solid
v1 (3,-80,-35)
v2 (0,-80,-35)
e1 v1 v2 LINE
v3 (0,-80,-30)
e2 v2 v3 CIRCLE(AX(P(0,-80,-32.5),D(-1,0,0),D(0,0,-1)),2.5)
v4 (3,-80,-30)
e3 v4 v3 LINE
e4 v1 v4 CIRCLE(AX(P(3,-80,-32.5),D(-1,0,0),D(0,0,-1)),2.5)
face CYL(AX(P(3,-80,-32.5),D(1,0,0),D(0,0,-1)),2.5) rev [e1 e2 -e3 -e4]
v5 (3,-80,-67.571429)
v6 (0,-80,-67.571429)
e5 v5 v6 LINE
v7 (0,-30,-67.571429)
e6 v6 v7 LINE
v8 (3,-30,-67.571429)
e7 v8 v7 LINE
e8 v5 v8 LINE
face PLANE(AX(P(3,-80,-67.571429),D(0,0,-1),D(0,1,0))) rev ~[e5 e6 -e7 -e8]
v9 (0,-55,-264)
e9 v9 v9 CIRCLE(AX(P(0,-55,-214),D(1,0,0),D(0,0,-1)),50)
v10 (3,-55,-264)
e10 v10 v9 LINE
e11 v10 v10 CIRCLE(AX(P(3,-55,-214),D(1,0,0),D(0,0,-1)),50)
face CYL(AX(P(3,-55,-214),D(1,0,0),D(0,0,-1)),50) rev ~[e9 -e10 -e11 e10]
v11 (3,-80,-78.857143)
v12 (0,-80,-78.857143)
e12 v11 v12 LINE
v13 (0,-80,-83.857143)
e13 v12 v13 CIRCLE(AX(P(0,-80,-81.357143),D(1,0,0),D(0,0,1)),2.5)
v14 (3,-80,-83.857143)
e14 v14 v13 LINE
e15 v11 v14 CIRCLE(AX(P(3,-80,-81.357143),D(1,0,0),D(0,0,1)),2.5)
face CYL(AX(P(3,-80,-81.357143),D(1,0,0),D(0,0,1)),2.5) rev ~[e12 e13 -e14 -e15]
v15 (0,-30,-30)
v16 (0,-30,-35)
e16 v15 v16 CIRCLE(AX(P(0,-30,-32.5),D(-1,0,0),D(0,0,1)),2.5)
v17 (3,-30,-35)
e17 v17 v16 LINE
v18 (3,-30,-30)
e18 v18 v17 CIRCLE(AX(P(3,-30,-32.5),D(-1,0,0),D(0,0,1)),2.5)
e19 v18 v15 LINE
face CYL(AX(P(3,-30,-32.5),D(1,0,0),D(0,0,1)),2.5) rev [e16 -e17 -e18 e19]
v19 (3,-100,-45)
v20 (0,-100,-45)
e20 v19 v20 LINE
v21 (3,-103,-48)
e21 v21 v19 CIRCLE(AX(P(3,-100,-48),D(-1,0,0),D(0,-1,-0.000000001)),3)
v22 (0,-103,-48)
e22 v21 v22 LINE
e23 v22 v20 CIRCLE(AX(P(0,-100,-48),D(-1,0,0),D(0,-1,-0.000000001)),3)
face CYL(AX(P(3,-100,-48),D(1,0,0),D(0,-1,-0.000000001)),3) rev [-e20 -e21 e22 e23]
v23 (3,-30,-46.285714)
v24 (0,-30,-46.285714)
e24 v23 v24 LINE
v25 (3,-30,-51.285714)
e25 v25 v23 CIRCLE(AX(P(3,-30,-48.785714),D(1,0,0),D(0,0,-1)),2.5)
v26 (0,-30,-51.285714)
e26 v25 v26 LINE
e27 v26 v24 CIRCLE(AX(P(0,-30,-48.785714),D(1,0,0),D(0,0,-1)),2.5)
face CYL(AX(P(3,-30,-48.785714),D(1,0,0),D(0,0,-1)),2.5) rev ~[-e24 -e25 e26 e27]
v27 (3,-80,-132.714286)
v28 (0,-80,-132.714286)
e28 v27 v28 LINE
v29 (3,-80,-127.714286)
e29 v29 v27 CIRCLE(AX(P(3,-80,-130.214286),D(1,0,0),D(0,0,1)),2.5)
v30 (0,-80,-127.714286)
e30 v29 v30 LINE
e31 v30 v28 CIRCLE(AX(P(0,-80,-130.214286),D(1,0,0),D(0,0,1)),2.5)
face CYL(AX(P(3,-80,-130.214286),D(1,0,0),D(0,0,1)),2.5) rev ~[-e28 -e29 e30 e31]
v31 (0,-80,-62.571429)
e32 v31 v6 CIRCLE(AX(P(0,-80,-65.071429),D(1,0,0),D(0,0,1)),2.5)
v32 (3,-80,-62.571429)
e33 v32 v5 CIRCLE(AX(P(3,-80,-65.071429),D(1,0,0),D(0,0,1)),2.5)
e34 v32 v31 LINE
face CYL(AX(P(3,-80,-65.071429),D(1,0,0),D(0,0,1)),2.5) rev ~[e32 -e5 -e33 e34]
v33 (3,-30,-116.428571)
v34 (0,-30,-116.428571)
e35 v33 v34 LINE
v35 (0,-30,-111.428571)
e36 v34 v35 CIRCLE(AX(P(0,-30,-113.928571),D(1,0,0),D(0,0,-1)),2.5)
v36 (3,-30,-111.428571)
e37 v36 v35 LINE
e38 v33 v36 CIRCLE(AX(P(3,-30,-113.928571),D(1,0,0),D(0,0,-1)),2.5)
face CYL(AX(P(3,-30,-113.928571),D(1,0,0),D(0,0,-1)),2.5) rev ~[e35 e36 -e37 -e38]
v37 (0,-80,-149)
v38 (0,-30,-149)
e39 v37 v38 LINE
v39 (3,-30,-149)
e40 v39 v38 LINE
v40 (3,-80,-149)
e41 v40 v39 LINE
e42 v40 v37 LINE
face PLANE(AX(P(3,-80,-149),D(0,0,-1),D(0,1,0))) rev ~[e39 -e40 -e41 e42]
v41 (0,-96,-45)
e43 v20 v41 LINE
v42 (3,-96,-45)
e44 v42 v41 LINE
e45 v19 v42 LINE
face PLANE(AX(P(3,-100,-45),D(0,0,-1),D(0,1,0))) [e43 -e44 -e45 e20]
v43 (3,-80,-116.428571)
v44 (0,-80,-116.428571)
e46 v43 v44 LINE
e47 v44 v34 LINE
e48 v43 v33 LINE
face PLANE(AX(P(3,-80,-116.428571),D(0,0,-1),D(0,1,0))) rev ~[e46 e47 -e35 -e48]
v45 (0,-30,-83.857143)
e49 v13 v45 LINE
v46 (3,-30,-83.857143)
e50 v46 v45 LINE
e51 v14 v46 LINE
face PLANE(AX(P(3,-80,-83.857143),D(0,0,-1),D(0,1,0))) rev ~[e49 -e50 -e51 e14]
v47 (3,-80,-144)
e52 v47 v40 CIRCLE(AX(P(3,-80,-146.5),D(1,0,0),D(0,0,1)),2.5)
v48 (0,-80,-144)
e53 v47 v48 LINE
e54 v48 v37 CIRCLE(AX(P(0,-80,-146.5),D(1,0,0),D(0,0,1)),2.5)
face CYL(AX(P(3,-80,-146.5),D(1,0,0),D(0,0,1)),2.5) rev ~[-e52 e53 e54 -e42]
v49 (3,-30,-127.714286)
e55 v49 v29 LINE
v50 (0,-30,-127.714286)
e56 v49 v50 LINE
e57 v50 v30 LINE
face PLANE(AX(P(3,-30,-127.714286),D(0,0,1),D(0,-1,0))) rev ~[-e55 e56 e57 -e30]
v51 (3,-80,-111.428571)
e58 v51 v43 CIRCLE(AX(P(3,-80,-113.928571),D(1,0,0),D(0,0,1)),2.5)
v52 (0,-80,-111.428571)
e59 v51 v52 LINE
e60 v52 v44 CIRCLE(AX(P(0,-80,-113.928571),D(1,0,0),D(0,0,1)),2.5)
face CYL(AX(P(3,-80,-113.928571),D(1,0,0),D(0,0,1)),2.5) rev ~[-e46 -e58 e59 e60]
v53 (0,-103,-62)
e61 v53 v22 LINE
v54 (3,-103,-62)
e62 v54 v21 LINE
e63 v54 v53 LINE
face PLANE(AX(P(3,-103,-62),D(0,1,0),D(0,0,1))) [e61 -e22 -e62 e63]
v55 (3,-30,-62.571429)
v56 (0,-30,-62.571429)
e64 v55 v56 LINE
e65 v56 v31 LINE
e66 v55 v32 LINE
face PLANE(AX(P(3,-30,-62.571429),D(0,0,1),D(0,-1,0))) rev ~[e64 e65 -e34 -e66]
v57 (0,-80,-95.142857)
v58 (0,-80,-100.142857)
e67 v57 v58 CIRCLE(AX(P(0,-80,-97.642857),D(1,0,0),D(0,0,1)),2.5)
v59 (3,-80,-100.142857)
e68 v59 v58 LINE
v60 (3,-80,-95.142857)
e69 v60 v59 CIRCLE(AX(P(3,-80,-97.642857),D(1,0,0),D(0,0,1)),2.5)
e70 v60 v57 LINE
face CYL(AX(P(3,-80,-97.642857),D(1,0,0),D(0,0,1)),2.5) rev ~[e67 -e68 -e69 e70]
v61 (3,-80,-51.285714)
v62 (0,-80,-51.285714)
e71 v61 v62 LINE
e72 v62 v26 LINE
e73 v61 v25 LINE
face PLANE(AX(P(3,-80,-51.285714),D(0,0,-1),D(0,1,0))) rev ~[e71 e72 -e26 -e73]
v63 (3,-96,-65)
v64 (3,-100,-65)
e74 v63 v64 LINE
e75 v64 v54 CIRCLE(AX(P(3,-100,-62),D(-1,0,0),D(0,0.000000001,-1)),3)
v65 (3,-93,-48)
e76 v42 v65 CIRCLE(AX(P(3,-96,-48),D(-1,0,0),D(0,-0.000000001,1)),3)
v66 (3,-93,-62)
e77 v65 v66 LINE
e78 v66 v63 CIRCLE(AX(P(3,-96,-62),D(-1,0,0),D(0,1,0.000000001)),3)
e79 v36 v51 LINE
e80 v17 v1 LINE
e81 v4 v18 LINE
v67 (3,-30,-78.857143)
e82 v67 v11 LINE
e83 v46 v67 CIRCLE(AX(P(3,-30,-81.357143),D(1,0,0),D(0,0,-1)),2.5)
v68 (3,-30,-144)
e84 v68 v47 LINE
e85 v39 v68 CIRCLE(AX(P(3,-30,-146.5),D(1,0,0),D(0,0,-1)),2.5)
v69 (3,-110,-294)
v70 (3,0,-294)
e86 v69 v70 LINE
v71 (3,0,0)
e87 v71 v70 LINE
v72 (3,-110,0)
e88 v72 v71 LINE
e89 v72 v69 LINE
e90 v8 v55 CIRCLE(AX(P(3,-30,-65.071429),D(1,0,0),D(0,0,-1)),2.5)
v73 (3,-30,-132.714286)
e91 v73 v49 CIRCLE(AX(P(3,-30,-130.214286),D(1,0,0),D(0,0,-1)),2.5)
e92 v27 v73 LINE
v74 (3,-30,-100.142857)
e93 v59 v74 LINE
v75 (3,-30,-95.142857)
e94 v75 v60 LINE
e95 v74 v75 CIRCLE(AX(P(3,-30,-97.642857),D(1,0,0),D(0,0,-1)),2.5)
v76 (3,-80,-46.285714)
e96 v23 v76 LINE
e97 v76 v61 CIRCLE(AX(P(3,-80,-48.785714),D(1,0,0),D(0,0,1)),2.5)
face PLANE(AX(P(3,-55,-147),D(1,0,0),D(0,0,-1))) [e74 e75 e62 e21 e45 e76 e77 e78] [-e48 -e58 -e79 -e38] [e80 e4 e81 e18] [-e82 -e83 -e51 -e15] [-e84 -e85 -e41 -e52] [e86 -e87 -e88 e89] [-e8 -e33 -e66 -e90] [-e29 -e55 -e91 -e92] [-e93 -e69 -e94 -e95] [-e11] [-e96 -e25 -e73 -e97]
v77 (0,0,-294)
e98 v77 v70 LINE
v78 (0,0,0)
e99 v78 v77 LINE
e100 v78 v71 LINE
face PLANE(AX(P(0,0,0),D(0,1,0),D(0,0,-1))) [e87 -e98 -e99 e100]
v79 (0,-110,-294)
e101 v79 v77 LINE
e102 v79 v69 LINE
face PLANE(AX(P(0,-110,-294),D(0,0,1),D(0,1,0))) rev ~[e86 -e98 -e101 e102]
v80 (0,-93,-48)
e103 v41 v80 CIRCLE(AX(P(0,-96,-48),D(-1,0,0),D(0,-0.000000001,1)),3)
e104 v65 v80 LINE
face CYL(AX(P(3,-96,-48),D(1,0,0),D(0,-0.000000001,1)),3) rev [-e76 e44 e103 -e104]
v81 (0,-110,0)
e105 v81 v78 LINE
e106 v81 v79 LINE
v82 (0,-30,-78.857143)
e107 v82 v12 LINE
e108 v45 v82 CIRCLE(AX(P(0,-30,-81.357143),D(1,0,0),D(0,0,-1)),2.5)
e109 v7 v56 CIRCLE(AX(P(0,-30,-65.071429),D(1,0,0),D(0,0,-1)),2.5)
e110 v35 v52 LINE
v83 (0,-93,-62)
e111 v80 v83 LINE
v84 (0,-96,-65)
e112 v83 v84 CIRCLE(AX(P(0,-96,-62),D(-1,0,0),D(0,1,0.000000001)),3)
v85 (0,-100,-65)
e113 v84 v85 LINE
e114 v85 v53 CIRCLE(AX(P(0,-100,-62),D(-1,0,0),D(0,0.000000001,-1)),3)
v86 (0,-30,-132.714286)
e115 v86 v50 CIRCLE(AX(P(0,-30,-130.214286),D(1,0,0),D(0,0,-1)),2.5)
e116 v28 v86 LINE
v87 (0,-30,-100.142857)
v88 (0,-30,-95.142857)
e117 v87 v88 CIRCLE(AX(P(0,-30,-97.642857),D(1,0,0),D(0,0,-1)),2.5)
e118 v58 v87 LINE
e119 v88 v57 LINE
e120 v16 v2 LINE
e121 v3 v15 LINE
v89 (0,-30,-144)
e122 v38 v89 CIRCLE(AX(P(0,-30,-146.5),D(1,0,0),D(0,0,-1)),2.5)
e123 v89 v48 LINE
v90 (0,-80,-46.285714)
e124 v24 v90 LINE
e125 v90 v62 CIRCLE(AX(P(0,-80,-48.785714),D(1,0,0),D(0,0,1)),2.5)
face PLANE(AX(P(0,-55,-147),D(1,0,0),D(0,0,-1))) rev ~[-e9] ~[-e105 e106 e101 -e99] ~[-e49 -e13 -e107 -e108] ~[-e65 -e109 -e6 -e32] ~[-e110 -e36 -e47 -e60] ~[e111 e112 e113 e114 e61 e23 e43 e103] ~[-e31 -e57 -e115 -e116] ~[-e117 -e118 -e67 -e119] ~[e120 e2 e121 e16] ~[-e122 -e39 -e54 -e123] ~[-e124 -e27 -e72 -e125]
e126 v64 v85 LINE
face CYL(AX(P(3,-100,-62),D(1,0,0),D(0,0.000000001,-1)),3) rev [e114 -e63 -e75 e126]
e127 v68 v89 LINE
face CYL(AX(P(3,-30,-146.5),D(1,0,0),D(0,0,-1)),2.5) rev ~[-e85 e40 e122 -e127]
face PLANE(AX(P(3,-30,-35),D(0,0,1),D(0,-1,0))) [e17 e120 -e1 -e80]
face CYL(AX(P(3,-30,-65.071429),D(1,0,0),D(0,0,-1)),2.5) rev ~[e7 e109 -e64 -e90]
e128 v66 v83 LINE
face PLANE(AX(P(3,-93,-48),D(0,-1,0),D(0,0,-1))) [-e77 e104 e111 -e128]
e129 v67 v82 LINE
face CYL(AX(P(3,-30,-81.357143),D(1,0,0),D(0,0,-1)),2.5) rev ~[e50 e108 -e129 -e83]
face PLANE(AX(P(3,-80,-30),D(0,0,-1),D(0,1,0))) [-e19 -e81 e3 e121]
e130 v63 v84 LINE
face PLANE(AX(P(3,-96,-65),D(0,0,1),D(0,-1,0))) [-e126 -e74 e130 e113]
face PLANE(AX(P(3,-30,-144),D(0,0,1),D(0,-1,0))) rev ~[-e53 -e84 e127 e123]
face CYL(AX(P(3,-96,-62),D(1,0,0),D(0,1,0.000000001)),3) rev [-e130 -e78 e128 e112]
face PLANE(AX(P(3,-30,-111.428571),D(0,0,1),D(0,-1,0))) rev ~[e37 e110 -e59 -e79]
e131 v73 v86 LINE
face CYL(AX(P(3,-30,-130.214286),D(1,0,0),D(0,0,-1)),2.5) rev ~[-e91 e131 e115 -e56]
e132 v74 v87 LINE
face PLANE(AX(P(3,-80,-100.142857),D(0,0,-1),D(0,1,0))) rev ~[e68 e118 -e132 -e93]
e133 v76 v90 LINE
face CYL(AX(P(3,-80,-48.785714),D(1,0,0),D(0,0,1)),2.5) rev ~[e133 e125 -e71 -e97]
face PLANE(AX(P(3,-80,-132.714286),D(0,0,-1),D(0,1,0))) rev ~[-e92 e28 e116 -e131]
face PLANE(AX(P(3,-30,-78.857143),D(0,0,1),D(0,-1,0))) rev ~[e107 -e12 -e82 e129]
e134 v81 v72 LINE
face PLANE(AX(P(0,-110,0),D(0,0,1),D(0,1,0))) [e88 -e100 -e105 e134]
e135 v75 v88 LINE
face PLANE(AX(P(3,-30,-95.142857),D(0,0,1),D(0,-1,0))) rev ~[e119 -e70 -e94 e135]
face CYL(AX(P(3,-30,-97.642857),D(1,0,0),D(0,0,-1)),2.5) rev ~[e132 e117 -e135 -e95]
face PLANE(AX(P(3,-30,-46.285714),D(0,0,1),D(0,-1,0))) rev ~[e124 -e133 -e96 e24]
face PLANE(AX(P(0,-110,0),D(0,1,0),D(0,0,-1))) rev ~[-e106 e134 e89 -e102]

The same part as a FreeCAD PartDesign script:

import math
import FreeCAD as App
import Part
import Sketcher

V = App.Vector

doc = App.newDocument("Part")
body = doc.addObject("PartDesign::Body", "Body")

# Sketch on YZ plane
sketch1 = body.newObject("Sketcher::SketchObject", "Sketch")
sketch1.AttachmentSupport = (doc.getObject("YZ_Plane"), [""])
sketch1.MapMode = "FlatFace"
sketch1.addGeometry([
    Part.LineSegment(V(0, 0, 0), V(-110, 0, 0)),
    Part.LineSegment(V(-110, 0, 0), V(-110, -294, 0)),
    Part.LineSegment(V(-110, -294, 0), V(0, -294, 0)),
    Part.LineSegment(V(0, -294, 0), V(0, 0, 0)),
], False)
sketch1.addConstraint([
    Sketcher.Constraint("Coincident", 0, 2, 1, 1),
    Sketcher.Constraint("Coincident", 1, 2, 2, 1),
    Sketcher.Constraint("Coincident", 2, 2, 3, 1),
    Sketcher.Constraint("Coincident", 3, 2, 0, 1),
    Sketcher.Constraint("Horizontal", 0),
    Sketcher.Constraint("Vertical", 1),
    Sketcher.Constraint("Horizontal", 2),
    Sketcher.Constraint("Vertical", 3),
    Sketcher.Constraint("Coincident", 3, 2, -1, 1),
    Sketcher.Constraint("DistanceX", 0, 2, 0, 1, 110.0),
    Sketcher.Constraint("DistanceY", 1, 2, 1, 1, 294.0),
])
pad1 = body.newObject("PartDesign::Pad", "Pad")
pad1.Profile = sketch1
pad1.Length = 3

# Sketch on YZ plane
sketch2 = body.newObject("Sketcher::SketchObject", "Sketch001")
sketch2.AttachmentSupport = (doc.getObject("YZ_Plane"), [""])
sketch2.MapMode = "FlatFace"
sketch2.AttachmentOffset = App.Placement(V(0, 0, 3), App.Rotation())
sketch2.addGeometry([
    Part.Circle(V(-55, -214, 0), V(0, 0, 1), 50),  # 0
    Part.LineSegment(V(-80, -35, 0), V(-30, -35, 0)),  # 1
    Part.ArcOfCircle(Part.Circle(V(-30, -32.5, 0), V(0, 0, 1), 2.5), math.radians(-90), math.radians(90)),  # 2
    Part.LineSegment(V(-30, -30, 0), V(-80, -30, 0)),  # 3
    Part.ArcOfCircle(Part.Circle(V(-80, -32.5, 0), V(0, 0, 1), 2.5), math.radians(90), math.radians(270)),  # 4
    Part.LineSegment(V(-30, -46.285714, 0), V(-80, -46.285714, 0)),  # 5
    Part.ArcOfCircle(Part.Circle(V(-80, -48.785714, 0), V(0, 0, 1), 2.5), math.radians(90), math.radians(270)),  # 6
    Part.LineSegment(V(-80, -51.285714, 0), V(-30, -51.285714, 0)),  # 7
    Part.ArcOfCircle(Part.Circle(V(-30, -48.785714, 0), V(0, 0, 1), 2.5), math.radians(-90), math.radians(90)),  # 8
    Part.LineSegment(V(-30, -62.571429, 0), V(-80, -62.571429, 0)),  # 9
    Part.ArcOfCircle(Part.Circle(V(-80, -65.071429, 0), V(0, 0, 1), 2.5), math.radians(90), math.radians(270)),  # 10
    Part.LineSegment(V(-80, -67.571429, 0), V(-30, -67.571429, 0)),  # 11
    Part.ArcOfCircle(Part.Circle(V(-30, -65.071429, 0), V(0, 0, 1), 2.5), math.radians(-90), math.radians(90)),  # 12
    Part.LineSegment(V(-30, -78.857143, 0), V(-80, -78.857143, 0)),  # 13
    Part.ArcOfCircle(Part.Circle(V(-80, -81.357143, 0), V(0, 0, 1), 2.5), math.radians(90), math.radians(270)),  # 14
    Part.LineSegment(V(-80, -83.857143, 0), V(-30, -83.857143, 0)),  # 15
    Part.ArcOfCircle(Part.Circle(V(-30, -81.357143, 0), V(0, 0, 1), 2.5), math.radians(-90), math.radians(90)),  # 16
    Part.LineSegment(V(-30, -95.142857, 0), V(-80, -95.142857, 0)),  # 17
    Part.ArcOfCircle(Part.Circle(V(-80, -97.642857, 0), V(0, 0, 1), 2.5), math.radians(90), math.radians(270)),  # 18
    Part.LineSegment(V(-80, -100.142857, 0), V(-30, -100.142857, 0)),  # 19
    Part.ArcOfCircle(Part.Circle(V(-30, -97.642857, 0), V(0, 0, 1), 2.5), math.radians(-90), math.radians(90)),  # 20
    Part.LineSegment(V(-30, -111.428571, 0), V(-80, -111.428571, 0)),  # 21
    Part.ArcOfCircle(Part.Circle(V(-80, -113.928571, 0), V(0, 0, 1), 2.5), math.radians(90), math.radians(270)),  # 22
    Part.LineSegment(V(-80, -116.428571, 0), V(-30, -116.428571, 0)),  # 23
    Part.ArcOfCircle(Part.Circle(V(-30, -113.928571, 0), V(0, 0, 1), 2.5), math.radians(-90), math.radians(90)),  # 24
    Part.LineSegment(V(-30, -127.714286, 0), V(-80, -127.714286, 0)),  # 25
    Part.ArcOfCircle(Part.Circle(V(-80, -130.214286, 0), V(0, 0, 1), 2.5), math.radians(90), math.radians(270)),  # 26
    Part.LineSegment(V(-80, -132.714286, 0), V(-30, -132.714286, 0)),  # 27
    Part.ArcOfCircle(Part.Circle(V(-30, -130.214286, 0), V(0, 0, 1), 2.5), math.radians(-90), math.radians(90)),  # 28
    Part.LineSegment(V(-30, -144, 0), V(-80, -144, 0)),  # 29
    Part.ArcOfCircle(Part.Circle(V(-80, -146.5, 0), V(0, 0, 1), 2.5), math.radians(90), math.radians(270)),  # 30
    Part.LineSegment(V(-80, -149, 0), V(-30, -149, 0)),  # 31
    Part.ArcOfCircle(Part.Circle(V(-30, -146.5, 0), V(0, 0, 1), 2.5), math.radians(-90), math.radians(90)),  # 32
    Part.LineSegment(V(-93, -62, 0), V(-93, -48, 0)),  # 33
    Part.ArcOfCircle(Part.Circle(V(-96, -48, 0), V(0, 0, 1), 3), math.radians(0), math.radians(90)),  # 34
    Part.LineSegment(V(-96, -45, 0), V(-100, -45, 0)),  # 35
    Part.ArcOfCircle(Part.Circle(V(-100, -48, 0), V(0, 0, 1), 3), math.radians(90), math.radians(180)),  # 36
    Part.LineSegment(V(-103, -48, 0), V(-103, -62, 0)),  # 37
    Part.ArcOfCircle(Part.Circle(V(-100, -62, 0), V(0, 0, 1), 3), math.radians(180), math.radians(270)),  # 38
    Part.LineSegment(V(-100, -65, 0), V(-96, -65, 0)),  # 39
    Part.ArcOfCircle(Part.Circle(V(-96, -62, 0), V(0, 0, 1), 3), math.radians(-90), math.radians(0)),  # 40
], False)
sketch2.addConstraint([
    Sketcher.Constraint("Tangent", 1, 2, 2, 1),
    Sketcher.Constraint("Tangent", 2, 2, 3, 1),
    Sketcher.Constraint("Tangent", 3, 2, 4, 1),
    Sketcher.Constraint("Tangent", 4, 2, 1, 1),
    Sketcher.Constraint("Tangent", 5, 2, 6, 1),
    Sketcher.Constraint("Tangent", 6, 2, 7, 1),
    Sketcher.Constraint("Tangent", 7, 2, 8, 1),
    Sketcher.Constraint("Tangent", 8, 2, 5, 1),
    Sketcher.Constraint("Tangent", 9, 2, 10, 1),
    Sketcher.Constraint("Tangent", 10, 2, 11, 1),
    Sketcher.Constraint("Tangent", 11, 2, 12, 1),
    Sketcher.Constraint("Tangent", 12, 2, 9, 1),
    Sketcher.Constraint("Tangent", 13, 2, 14, 1),
    Sketcher.Constraint("Tangent", 14, 2, 15, 1),
    Sketcher.Constraint("Tangent", 15, 2, 16, 1),
    Sketcher.Constraint("Tangent", 16, 2, 13, 1),
    Sketcher.Constraint("Tangent", 17, 2, 18, 1),
    Sketcher.Constraint("Tangent", 18, 2, 19, 1),
    Sketcher.Constraint("Tangent", 19, 2, 20, 1),
    Sketcher.Constraint("Tangent", 20, 2, 17, 1),
    Sketcher.Constraint("Tangent", 21, 2, 22, 1),
    Sketcher.Constraint("Tangent", 22, 2, 23, 1),
    Sketcher.Constraint("Tangent", 23, 2, 24, 1),
    Sketcher.Constraint("Tangent", 24, 2, 21, 1),
    Sketcher.Constraint("Tangent", 25, 2, 26, 1),
    Sketcher.Constraint("Tangent", 26, 2, 27, 1),
    Sketcher.Constraint("Tangent", 27, 2, 28, 1),
    Sketcher.Constraint("Tangent", 28, 2, 25, 1),
    Sketcher.Constraint("Tangent", 29, 2, 30, 1),
    Sketcher.Constraint("Tangent", 30, 2, 31, 1),
    Sketcher.Constraint("Tangent", 31, 2, 32, 1),
    Sketcher.Constraint("Tangent", 32, 2, 29, 1),
    Sketcher.Constraint("Tangent", 33, 2, 34, 1),
    Sketcher.Constraint("Tangent", 34, 2, 35, 1),
    Sketcher.Constraint("Tangent", 35, 2, 36, 1),
    Sketcher.Constraint("Tangent", 36, 2, 37, 1),
    Sketcher.Constraint("Tangent", 37, 2, 38, 1),
    Sketcher.Constraint("Tangent", 38, 2, 39, 1),
    Sketcher.Constraint("Tangent", 39, 2, 40, 1),
    Sketcher.Constraint("Tangent", 40, 2, 33, 1),
    Sketcher.Constraint("Horizontal", 1),
    Sketcher.Constraint("Horizontal", 3),
    Sketcher.Constraint("Horizontal", 5),
    Sketcher.Constraint("Horizontal", 7),
    Sketcher.Constraint("Horizontal", 9),
    Sketcher.Constraint("Horizontal", 11),
    Sketcher.Constraint("Horizontal", 13),
    Sketcher.Constraint("Horizontal", 15),
    Sketcher.Constraint("Horizontal", 17),
    Sketcher.Constraint("Horizontal", 19),
    Sketcher.Constraint("Horizontal", 21),
    Sketcher.Constraint("Horizontal", 23),
    Sketcher.Constraint("Horizontal", 25),
    Sketcher.Constraint("Horizontal", 27),
    Sketcher.Constraint("Horizontal", 29),
    Sketcher.Constraint("Horizontal", 31),
    Sketcher.Constraint("Vertical", 33),
    Sketcher.Constraint("Horizontal", 35),
    Sketcher.Constraint("Vertical", 37),
    Sketcher.Constraint("Horizontal", 39),
    Sketcher.Constraint("Equal", 4, 6),
    Sketcher.Constraint("Equal", 8, 10),
    Sketcher.Constraint("Equal", 12, 14),
    Sketcher.Constraint("Equal", 16, 18),
    Sketcher.Constraint("Equal", 20, 22),
    Sketcher.Constraint("Equal", 24, 26),
    Sketcher.Constraint("Equal", 28, 30),
    Sketcher.Constraint("Equal", 34, 36),
    Sketcher.Constraint("Equal", 36, 38),
    Sketcher.Constraint("Equal", 38, 40),
    Sketcher.Constraint("Vertical", 4, 3, 6, 3),
    Sketcher.Constraint("Vertical", 2, 3, 8, 3),
    Sketcher.Constraint("Vertical", 6, 3, 10, 3),
    Sketcher.Constraint("Vertical", 8, 3, 12, 3),
    Sketcher.Constraint("Vertical", 10, 3, 14, 3),
    Sketcher.Constraint("Vertical", 12, 3, 16, 3),
    Sketcher.Constraint("Vertical", 14, 3, 18, 3),
    Sketcher.Constraint("Vertical", 16, 3, 20, 3),
    Sketcher.Constraint("Vertical", 18, 3, 22, 3),
    Sketcher.Constraint("Vertical", 20, 3, 24, 3),
    Sketcher.Constraint("Vertical", 22, 3, 26, 3),
    Sketcher.Constraint("Vertical", 24, 3, 28, 3),
    Sketcher.Constraint("Vertical", 26, 3, 30, 3),
    Sketcher.Constraint("Vertical", 28, 3, 32, 3),
    Sketcher.Constraint("Diameter", 0, 100.0),
    Sketcher.Constraint("Radius", 34, 3.0),
    Sketcher.Constraint("Radius", 2, 2.5),
    Sketcher.Constraint("DistanceX", 1, 1, 1, 2, 50.0),
    Sketcher.Constraint("DistanceX", 35, 2, 35, 1, 4.0),
    Sketcher.Constraint("DistanceY", 33, 1, 33, 2, 14.0),
    Sketcher.Constraint("DistanceX", 0, 3, -1, 1, 55.0),
    Sketcher.Constraint("DistanceY", 0, 3, -1, 1, 214.0),
    Sketcher.Constraint("DistanceX", 2, 3, -1, 1, 30.0),
    Sketcher.Constraint("DistanceX", 34, 3, -1, 1, 96.0),
    Sketcher.Constraint("DistanceY", 34, 3, -1, 1, 48.0),
    Sketcher.Constraint("DistanceY", 1, 2, -1, 1, 35.0),
    Sketcher.Constraint("DistanceY", 29, 2, -1, 1, 144.0),
    Sketcher.Constraint("DistanceY", 10, 3, -1, 1, 65.071429),
    Sketcher.Constraint("DistanceY", 22, 3, -1, 1, 113.928571),
    Sketcher.Constraint("DistanceY", 6, 3, -1, 1, 48.785714),
    Sketcher.Constraint("DistanceY", 14, 3, -1, 1, 81.357143),
    Sketcher.Constraint("DistanceY", 18, 3, -1, 1, 97.642857),
    Sketcher.Constraint("DistanceY", 26, 3, -1, 1, 130.214286),
])
pocket1 = body.newObject("PartDesign::Pocket", "Pocket")
pocket1.Profile = sketch2
pocket1.Length = 3

doc.recompute()
